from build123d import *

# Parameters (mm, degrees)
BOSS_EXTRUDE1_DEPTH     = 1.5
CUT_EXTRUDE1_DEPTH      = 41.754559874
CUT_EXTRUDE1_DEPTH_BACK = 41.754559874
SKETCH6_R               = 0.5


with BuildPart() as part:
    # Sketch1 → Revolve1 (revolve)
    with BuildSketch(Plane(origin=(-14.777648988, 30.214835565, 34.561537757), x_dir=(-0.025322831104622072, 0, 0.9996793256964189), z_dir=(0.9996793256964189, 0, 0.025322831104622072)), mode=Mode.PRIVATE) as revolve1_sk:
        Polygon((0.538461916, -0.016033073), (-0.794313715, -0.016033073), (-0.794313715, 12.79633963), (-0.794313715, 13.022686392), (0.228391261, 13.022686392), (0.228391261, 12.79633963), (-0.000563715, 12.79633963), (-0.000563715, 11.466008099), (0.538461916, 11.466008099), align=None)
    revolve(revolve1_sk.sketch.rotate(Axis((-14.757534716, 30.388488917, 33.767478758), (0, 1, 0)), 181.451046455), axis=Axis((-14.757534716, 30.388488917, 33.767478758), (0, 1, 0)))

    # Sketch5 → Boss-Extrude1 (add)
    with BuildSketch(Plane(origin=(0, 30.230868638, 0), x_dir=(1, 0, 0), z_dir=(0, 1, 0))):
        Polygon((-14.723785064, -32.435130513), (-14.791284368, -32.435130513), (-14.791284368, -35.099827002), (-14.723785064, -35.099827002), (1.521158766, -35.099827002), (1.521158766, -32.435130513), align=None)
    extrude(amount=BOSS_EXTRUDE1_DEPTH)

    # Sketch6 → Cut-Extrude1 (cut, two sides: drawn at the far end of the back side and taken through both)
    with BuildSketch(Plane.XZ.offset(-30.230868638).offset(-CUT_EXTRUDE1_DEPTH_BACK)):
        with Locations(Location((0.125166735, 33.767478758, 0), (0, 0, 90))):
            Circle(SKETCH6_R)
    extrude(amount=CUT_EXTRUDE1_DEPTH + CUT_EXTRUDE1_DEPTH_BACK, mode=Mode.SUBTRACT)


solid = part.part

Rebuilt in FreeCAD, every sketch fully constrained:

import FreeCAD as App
import Part
import Sketcher


def add_polygon(sketch, points):
    """Adds a closed chain of lines whose ends are joined by coincident constraints."""
    first, n = sketch.GeometryCount, len(points)
    for a, b in zip(points, points[1:] + points[:1]):
        sketch.addGeometry(Part.LineSegment(App.Vector(*a, 0), App.Vector(*b, 0)), False)
    for i in range(n):
        sketch.addConstraint(Sketcher.Constraint("Coincident", first + i, 2, first + (i + 1) % n, 1))

doc = App.newDocument("Part")
body = doc.addObject("PartDesign::Body", "Body")

sketch1 = body.newObject("Sketcher::SketchObject", "Sketch")
sketch1.Placement = App.Placement(App.Vector(-14.777649, 30.214836, 34.561538), App.Rotation(App.Vector(-0.025322831, 0, 0.999679326), App.Vector(0, -1.000000001, 0), App.Vector(0.999679326, 0, 0.025322831), "ZXY"))
add_polygon(sketch1, [(-0.79, -0.02), (0.54, -0.02), (0.54, 11.47), (0, 11.47), (0, 12.8), (0.23, 12.8), (0.23, 13.02), (-0.79, 13.02)])
sketch1.addGeometry(Part.LineSegment(App.Vector(-0.79, 13.02, 0), App.Vector(-0.79, -0.02, 0)), True)
sketch1.addConstraint([
    Sketcher.Constraint("Horizontal", 0),
    Sketcher.Constraint("Vertical", 1),
    Sketcher.Constraint("Horizontal", 2),
    Sketcher.Constraint("Vertical", 3),
    Sketcher.Constraint("Horizontal", 4),
    Sketcher.Constraint("Vertical", 5),
    Sketcher.Constraint("Horizontal", 6),
    Sketcher.Constraint("Vertical", 7),
    Sketcher.Constraint("Vertical", 8),
    Sketcher.Constraint("Coincident", 8, 1, 6, 2),
    Sketcher.Constraint("Horizontal", 0, 2, 8, 2),
    Sketcher.Constraint("DistanceY", 1, 1, 1, 2, 11.482041),
    Sketcher.Constraint("DistanceY", 3, 1, 3, 2, 1.330332),
    Sketcher.Constraint("DistanceY", 7, 2, 7, 1, 13.038719),
    Sketcher.Constraint("DistanceX", 0, 1, 0, 2, 1.332776),
    Sketcher.Constraint("DistanceX", 2, 2, 2, 1, 0.539026),
    Sketcher.Constraint("DistanceX", 4, 1, 4, 2, 0.228955),
    Sketcher.Constraint("DistanceX", -1, 1, 0, 2, 0.538462),
    Sketcher.Constraint("DistanceY", -1, 1, 1, 2, 11.466008),
])
revolution = body.newObject("PartDesign::Revolution", "Revolution")
revolution.Profile = sketch1
revolution.ReferenceAxis = (sketch1, ["Axis0"])
revolution.Angle = 360

sketch2 = body.newObject("Sketcher::SketchObject", "Sketch001")
sketch2.AttachmentSupport = (doc.getObject("XZ_Plane"), [""])
sketch2.MapMode = "FlatFace"
sketch2.AttachmentOffset = App.Placement(App.Vector(0, 0, -30.230869), App.Rotation())
add_polygon(sketch2, [(-14.8, 32.4), (-14.8, 35.1), (1.5, 35.1), (1.5, 32.4)])
sketch2.addConstraint([
    Sketcher.Constraint("Vertical", 0),
    Sketcher.Constraint("Horizontal", 1),
    Sketcher.Constraint("Vertical", 2),
    Sketcher.Constraint("Horizontal", 3),
    Sketcher.Constraint("DistanceX", 1, 1, 1, 2, 16.312443),
    Sketcher.Constraint("DistanceY", 0, 1, 0, 2, 2.664696),
    Sketcher.Constraint("DistanceX", -1, 1, 1, 2, 1.521159),
    Sketcher.Constraint("DistanceY", -1, 1, 2, 2, 32.435131),
])
pad1 = body.newObject("PartDesign::Pad", "Pad")
pad1.Profile = sketch2
pad1.Length = 1.5
pad1.Reversed = True

sketch3 = body.newObject("Sketcher::SketchObject", "Sketch002")
sketch3.AttachmentSupport = (doc.getObject("XZ_Plane"), [""])
sketch3.MapMode = "FlatFace"
sketch3.AttachmentOffset = App.Placement(App.Vector(0, 0, -30.230869), App.Rotation())
sketch3.addGeometry(Part.Circle(App.Vector(0.1, 33.8, 0), App.Vector(0, 0, 1), 0.5), False)
sketch3.addConstraint([
    Sketcher.Constraint("Diameter", 0, 1.0),
    Sketcher.Constraint("DistanceY", -1, 1, 0, 3, 33.767479),
    Sketcher.Constraint("DistanceX", -1, 1, 0, 3, 0.125167),
])
pocket1 = body.newObject("PartDesign::Pocket", "Pocket")
pocket1.Profile = sketch3
pocket1.Type = "ThroughAll"
pocket1.Midplane = True

doc.recompute()
